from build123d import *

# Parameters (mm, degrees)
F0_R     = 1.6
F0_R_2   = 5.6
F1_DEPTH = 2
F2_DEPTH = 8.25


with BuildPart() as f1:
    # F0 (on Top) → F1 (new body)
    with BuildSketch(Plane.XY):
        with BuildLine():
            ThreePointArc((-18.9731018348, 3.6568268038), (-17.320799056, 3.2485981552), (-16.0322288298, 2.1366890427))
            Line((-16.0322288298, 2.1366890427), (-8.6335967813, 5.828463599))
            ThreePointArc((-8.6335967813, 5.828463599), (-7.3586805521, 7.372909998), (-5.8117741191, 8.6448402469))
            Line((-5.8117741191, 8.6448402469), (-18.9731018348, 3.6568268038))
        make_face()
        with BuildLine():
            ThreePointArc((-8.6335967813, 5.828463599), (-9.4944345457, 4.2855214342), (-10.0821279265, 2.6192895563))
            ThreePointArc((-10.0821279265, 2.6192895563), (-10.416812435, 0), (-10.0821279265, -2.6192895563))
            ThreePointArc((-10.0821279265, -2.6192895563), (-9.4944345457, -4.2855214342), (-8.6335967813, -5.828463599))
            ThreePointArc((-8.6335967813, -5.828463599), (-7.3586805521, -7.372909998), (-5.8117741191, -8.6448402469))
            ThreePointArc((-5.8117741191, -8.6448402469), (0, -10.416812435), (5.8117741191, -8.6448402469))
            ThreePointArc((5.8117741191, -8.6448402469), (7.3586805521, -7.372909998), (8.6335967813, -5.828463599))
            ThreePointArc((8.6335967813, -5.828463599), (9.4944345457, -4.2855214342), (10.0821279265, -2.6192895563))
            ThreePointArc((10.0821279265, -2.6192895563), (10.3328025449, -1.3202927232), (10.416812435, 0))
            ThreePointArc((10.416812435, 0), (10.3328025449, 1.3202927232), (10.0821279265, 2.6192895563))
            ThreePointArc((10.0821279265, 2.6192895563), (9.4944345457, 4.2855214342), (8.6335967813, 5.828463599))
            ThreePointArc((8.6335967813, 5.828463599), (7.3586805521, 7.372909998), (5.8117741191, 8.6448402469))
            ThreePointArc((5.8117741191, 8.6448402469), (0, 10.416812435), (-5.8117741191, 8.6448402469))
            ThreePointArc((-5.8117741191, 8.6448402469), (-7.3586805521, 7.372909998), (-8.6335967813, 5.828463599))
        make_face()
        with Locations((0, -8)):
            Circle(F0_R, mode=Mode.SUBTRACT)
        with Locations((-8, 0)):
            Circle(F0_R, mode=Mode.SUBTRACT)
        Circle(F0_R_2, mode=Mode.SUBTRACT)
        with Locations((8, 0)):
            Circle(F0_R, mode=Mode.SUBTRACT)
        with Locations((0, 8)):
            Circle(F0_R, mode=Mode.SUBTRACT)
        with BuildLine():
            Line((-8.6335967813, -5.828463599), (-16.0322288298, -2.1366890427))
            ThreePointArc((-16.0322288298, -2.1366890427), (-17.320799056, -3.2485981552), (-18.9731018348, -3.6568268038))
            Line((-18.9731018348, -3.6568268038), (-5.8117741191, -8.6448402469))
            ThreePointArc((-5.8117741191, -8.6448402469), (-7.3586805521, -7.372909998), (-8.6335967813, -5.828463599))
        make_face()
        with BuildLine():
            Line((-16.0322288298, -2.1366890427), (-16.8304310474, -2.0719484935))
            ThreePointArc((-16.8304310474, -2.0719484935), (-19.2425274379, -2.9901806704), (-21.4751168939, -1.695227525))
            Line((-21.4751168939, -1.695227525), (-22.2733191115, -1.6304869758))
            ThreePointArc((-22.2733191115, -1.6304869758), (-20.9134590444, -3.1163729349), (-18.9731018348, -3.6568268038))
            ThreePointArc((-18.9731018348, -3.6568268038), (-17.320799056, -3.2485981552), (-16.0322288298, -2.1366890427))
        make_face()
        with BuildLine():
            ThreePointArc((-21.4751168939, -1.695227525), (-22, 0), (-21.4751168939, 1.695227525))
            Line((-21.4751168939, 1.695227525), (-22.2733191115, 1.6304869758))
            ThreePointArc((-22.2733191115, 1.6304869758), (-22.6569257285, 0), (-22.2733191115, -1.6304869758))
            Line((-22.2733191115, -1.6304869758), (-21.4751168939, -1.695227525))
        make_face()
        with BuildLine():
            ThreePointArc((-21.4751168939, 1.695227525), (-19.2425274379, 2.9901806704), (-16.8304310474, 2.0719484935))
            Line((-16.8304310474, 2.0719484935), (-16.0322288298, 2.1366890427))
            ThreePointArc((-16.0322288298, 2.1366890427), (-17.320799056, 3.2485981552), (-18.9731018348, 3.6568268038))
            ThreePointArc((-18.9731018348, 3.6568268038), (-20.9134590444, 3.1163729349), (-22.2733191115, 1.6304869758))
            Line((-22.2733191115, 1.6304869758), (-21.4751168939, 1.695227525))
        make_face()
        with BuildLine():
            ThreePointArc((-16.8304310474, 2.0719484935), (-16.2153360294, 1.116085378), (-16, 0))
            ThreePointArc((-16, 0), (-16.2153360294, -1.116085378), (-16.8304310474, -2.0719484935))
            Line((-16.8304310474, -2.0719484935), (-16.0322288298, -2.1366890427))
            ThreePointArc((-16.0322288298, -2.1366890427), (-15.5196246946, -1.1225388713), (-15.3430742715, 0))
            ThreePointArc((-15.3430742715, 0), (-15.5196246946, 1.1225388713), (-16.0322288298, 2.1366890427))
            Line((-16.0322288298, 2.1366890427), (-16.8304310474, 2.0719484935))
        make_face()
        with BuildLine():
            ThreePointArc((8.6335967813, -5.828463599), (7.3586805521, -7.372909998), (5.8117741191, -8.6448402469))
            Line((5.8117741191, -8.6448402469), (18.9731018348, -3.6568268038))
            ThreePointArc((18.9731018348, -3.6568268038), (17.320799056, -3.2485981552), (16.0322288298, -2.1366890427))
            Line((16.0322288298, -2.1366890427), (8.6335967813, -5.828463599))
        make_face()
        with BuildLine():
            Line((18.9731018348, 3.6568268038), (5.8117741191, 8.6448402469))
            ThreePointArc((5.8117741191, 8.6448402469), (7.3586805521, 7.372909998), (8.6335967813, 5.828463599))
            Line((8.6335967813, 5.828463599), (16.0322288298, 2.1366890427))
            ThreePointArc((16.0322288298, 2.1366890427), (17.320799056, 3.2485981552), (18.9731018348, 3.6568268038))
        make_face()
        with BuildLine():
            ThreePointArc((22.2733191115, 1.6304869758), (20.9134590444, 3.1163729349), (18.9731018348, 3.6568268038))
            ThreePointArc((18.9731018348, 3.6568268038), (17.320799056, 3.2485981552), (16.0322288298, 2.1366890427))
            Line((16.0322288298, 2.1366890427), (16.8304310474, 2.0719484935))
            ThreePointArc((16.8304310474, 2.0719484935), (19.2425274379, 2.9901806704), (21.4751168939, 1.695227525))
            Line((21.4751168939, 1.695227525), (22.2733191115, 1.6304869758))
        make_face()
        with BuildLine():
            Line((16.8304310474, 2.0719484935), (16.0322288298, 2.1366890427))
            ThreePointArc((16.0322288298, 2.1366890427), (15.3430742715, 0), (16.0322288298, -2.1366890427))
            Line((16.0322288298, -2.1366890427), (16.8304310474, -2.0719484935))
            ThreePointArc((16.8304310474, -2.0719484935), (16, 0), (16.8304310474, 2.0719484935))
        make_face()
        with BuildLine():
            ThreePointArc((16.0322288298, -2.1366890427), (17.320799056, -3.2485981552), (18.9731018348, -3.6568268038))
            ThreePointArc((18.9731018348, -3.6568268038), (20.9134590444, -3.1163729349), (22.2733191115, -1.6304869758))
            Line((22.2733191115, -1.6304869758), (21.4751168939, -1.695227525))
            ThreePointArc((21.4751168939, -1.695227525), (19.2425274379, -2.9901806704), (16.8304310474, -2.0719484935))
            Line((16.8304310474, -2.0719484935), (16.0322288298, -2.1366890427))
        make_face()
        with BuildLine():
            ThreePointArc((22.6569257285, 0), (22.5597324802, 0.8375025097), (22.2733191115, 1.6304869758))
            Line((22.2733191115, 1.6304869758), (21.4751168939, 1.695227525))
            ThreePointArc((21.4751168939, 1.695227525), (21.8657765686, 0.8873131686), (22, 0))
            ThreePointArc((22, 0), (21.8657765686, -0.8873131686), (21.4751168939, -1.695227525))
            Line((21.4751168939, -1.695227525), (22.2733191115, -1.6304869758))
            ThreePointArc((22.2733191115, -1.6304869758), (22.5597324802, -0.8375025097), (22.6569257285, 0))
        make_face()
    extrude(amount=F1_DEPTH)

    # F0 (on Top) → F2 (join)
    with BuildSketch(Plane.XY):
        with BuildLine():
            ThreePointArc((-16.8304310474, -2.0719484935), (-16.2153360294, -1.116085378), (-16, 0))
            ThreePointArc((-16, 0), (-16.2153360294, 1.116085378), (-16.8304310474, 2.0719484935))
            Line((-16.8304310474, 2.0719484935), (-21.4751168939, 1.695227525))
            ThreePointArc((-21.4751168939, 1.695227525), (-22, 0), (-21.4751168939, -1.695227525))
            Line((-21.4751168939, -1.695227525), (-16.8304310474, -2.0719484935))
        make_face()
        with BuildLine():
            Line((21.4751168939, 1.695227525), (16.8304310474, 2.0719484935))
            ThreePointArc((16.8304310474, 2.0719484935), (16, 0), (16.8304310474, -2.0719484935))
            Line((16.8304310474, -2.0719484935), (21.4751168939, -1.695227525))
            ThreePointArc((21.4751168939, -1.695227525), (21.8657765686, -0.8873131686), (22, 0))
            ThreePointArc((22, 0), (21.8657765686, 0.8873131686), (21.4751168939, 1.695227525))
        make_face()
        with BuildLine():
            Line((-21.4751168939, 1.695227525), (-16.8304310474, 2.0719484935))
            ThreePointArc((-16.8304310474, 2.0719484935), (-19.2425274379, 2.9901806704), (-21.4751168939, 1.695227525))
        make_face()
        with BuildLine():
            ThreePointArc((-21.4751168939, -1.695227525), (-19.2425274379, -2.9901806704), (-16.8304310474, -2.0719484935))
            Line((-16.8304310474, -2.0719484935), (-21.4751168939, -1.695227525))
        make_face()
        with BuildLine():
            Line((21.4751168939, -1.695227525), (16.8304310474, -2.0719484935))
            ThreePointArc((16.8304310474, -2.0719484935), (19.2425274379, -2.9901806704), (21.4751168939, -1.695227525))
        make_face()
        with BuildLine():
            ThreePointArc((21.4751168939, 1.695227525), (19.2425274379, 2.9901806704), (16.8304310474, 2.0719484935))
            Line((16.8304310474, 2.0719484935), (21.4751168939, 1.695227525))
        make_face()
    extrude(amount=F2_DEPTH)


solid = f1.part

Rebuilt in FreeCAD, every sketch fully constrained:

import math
import FreeCAD as App
import Part
import Sketcher

V = App.Vector

doc = App.newDocument("Part")
body = doc.addObject("PartDesign::Body", "Body")

# Sketch on XY plane
sketch1 = doc.addObject("Sketcher::SketchObject", "Sketch")
body.addObject(sketch1)
sketch1.AttachmentSupport = (doc.XY_Plane, [""])
sketch1.MapMode = "FlatFace"
sketch1.addGeometry(Part.LineSegment(V(5.811774, -8.64484, 0), V(18.973102, -3.656827, 0)), False)
sketch1.addGeometry(Part.ArcOfCircle(Part.Circle(V(19, 0, 0), V(0, 0, 1), 3.656926), math.radians(-90.421437), math.radians(-26.478551)), False)
sketch1.addGeometry(Part.ArcOfCircle(Part.Circle(V(19, 0, 0), V(0, 0, 1), 3.656926), math.radians(-26.478551), math.radians(0)), False)
sketch1.addGeometry(Part.ArcOfCircle(Part.Circle(V(19, 0, 0), V(0, 0, 1), 3.656926), math.radians(0), math.radians(26.478551)), False)
sketch1.addGeometry(Part.ArcOfCircle(Part.Circle(V(19, 0, 0), V(0, 0, 1), 3.656926), math.radians(26.478551), math.radians(90.421437)), False)
sketch1.addGeometry(Part.LineSegment(V(18.973102, 3.656827, 0), V(5.811774, 8.64484, 0)), False)
sketch1.addGeometry(Part.ArcOfCircle(Part.Circle(V(0, 0, 0), V(0, 0, 1), 10.416812), math.radians(56.087753), math.radians(123.912247)), False)
sketch1.addGeometry(Part.LineSegment(V(-5.811774, 8.64484, 0), V(-18.973102, 3.656827, 0)), False)
sketch1.addGeometry(Part.ArcOfCircle(Part.Circle(V(-19, 0, 0), V(0, 0, 1), 3.656926), math.radians(89.578563), math.radians(153.521449)), False)
sketch1.addGeometry(Part.ArcOfCircle(Part.Circle(V(-19, 0, 0), V(0, 0, 1), 3.656926), math.radians(153.521449), math.radians(206.478551)), False)
sketch1.addGeometry(Part.ArcOfCircle(Part.Circle(V(-19, 0, 0), V(0, 0, 1), 3.656926), math.radians(-153.521449), math.radians(-89.578563)), False)
sketch1.addGeometry(Part.LineSegment(V(-18.973102, -3.656827, 0), V(-5.811774, -8.64484, 0)), False)
sketch1.addGeometry(Part.ArcOfCircle(Part.Circle(V(0, 0, 0), V(0, 0, 1), 10.416812), math.radians(-123.912247), math.radians(-56.087753)), False)
sketch1.addGeometry(Part.ArcOfCircle(Part.Circle(V(19, 0, 0), V(0, 0, 1), 3), math.radians(-136.318456), math.radians(-34.407558)), False)
sketch1.addGeometry(Part.ArcOfCircle(Part.Circle(V(19, 0, 0), V(0, 0, 1), 3), math.radians(136.318456), math.radians(223.681544)), False)
sketch1.addGeometry(Part.ArcOfCircle(Part.Circle(V(19, 0, 0), V(0, 0, 1), 3), math.radians(34.407558), math.radians(136.318456)), False)
sketch1.addGeometry(Part.ArcOfCircle(Part.Circle(V(19, 0, 0), V(0, 0, 1), 3), math.radians(0), math.radians(34.407558)), False)
sketch1.addGeometry(Part.ArcOfCircle(Part.Circle(V(19, 0, 0), V(0, 0, 1), 3), math.radians(-34.407558), math.radians(0)), False)
sketch1.addGeometry(Part.Circle(V(0, -8, 0), V(0, 0, 1), 1.6), False)
sketch1.addGeometry(Part.ArcOfCircle(Part.Circle(V(19, 0, 0), V(0, 0, 1), 3.656926), math.radians(144.247463), math.radians(215.752537)), False)
sketch1.addGeometry(Part.LineSegment(V(16.032229, -2.136689, 0), V(8.633597, -5.828464, 0)), False)
sketch1.addGeometry(Part.ArcOfCircle(Part.Circle(V(0, 0, 0), V(0, 0, 1), 10.416812), math.radians(-34.022932), math.radians(-14.56323)), False)
sketch1.addGeometry(Part.ArcOfCircle(Part.Circle(V(0, 0, 0), V(0, 0, 1), 10.416812), math.radians(-14.56323), math.radians(0)), False)
sketch1.addGeometry(Part.ArcOfCircle(Part.Circle(V(0, 0, 0), V(0, 0, 1), 10.416812), math.radians(0), math.radians(14.56323)), False)
sketch1.addGeometry(Part.ArcOfCircle(Part.Circle(V(0, 0, 0), V(0, 0, 1), 10.416812), math.radians(14.56323), math.radians(34.022932)), False)
sketch1.addGeometry(Part.LineSegment(V(8.633597, 5.828464, 0), V(16.032229, 2.136689, 0)), False)
sketch1.addGeometry(Part.ArcOfCircle(Part.Circle(V(-19, 0, 0), V(0, 0, 1), 3), math.radians(-145.592442), math.radians(-43.681544)), False)
sketch1.addGeometry(Part.ArcOfCircle(Part.Circle(V(-19, 0, 0), V(0, 0, 1), 3), math.radians(145.592442), math.radians(214.407558)), False)
sketch1.addGeometry(Part.ArcOfCircle(Part.Circle(V(-19, 0, 0), V(0, 0, 1), 3), math.radians(43.681544), math.radians(145.592442)), False)
sketch1.addGeometry(Part.ArcOfCircle(Part.Circle(V(-19, 0, 0), V(0, 0, 1), 3), math.radians(0), math.radians(43.681544)), False)
sketch1.addGeometry(Part.ArcOfCircle(Part.Circle(V(-19, 0, 0), V(0, 0, 1), 3), math.radians(-43.681544), math.radians(0)), False)
sketch1.addGeometry(Part.LineSegment(V(-16.032229, 2.136689, 0), V(-8.633597, 5.828464, 0)), False)
sketch1.addGeometry(Part.ArcOfCircle(Part.Circle(V(0, 0, 0), V(0, 0, 1), 10.416812), math.radians(145.977068), math.radians(165.43677)), False)
sketch1.addGeometry(Part.ArcOfCircle(Part.Circle(V(0, 0, 0), V(0, 0, 1), 10.416812), math.radians(165.43677), math.radians(194.56323)), False)
sketch1.addGeometry(Part.ArcOfCircle(Part.Circle(V(0, 0, 0), V(0, 0, 1), 10.416812), math.radians(-165.43677), math.radians(-145.977068)), False)
sketch1.addGeometry(Part.LineSegment(V(-8.633597, -5.828464, 0), V(-16.032229, -2.136689, 0)), False)
sketch1.addGeometry(Part.ArcOfCircle(Part.Circle(V(-19, 0, 0), V(0, 0, 1), 3.656926), math.radians(-35.752537), math.radians(0)), False)
sketch1.addGeometry(Part.ArcOfCircle(Part.Circle(V(-19, 0, 0), V(0, 0, 1), 3.656926), math.radians(0), math.radians(35.752537)), False)
sketch1.addGeometry(Part.Circle(V(-8, 0, 0), V(0, 0, 1), 1.6), False)
sketch1.addGeometry(Part.Circle(V(0, 0, 0), V(0, 0, 1), 5.6), False)
sketch1.addGeometry(Part.Circle(V(8, 0, 0), V(0, 0, 1), 1.6), False)
sketch1.addGeometry(Part.Circle(V(0, 8, 0), V(0, 0, 1), 1.6), False)
sketch1.addConstraint(Sketcher.Constraint("Coincident", 0, 2, 1, 1))
sketch1.addConstraint(Sketcher.Constraint("Tangent", 1, 2, 2, 1))
sketch1.addConstraint(Sketcher.Constraint("Tangent", 2, 2, 3, 1))
sketch1.addConstraint(Sketcher.Constraint("Tangent", 3, 2, 4, 1))
sketch1.addConstraint(Sketcher.Constraint("Coincident", 4, 2, 5, 1))
sketch1.addConstraint(Sketcher.Constraint("Coincident", 5, 2, 6, 1))
sketch1.addConstraint(Sketcher.Constraint("Coincident", 6, 2, 7, 1))
sketch1.addConstraint(Sketcher.Constraint("Coincident", 7, 2, 8, 1))
sketch1.addConstraint(Sketcher.Constraint("Tangent", 8, 2, 9, 1))
sketch1.addConstraint(Sketcher.Constraint("Tangent", 9, 2, 10, 1))
sketch1.addConstraint(Sketcher.Constraint("Coincident", 10, 2, 11, 1))
sketch1.addConstraint(Sketcher.Constraint("Coincident", 11, 2, 12, 1))
sketch1.addConstraint(Sketcher.Constraint("Coincident", 12, 2, 0, 1))
sketch1.addConstraint(Sketcher.Constraint("Tangent", 13, 1, 14, 2))
sketch1.addConstraint(Sketcher.Constraint("Tangent", 14, 1, 15, 2))
sketch1.addConstraint(Sketcher.Constraint("Tangent", 15, 1, 16, 2))
sketch1.addConstraint(Sketcher.Constraint("Tangent", 16, 1, 17, 2))
sketch1.addConstraint(Sketcher.Constraint("Tangent", 17, 1, 13, 2))
sketch1.addConstraint(Sketcher.Constraint("Coincident", 19, 2, 20, 1))
sketch1.addConstraint(Sketcher.Constraint("Coincident", 20, 2, 21, 1))
sketch1.addConstraint(Sketcher.Constraint("Tangent", 21, 2, 22, 1))
sketch1.addConstraint(Sketcher.Constraint("Tangent", 22, 2, 23, 1))
sketch1.addConstraint(Sketcher.Constraint("Tangent", 23, 2, 24, 1))
sketch1.addConstraint(Sketcher.Constraint("Coincident", 24, 2, 25, 1))
sketch1.addConstraint(Sketcher.Constraint("Coincident", 25, 2, 19, 1))
sketch1.addConstraint(Sketcher.Constraint("Tangent", 26, 1, 27, 2))
sketch1.addConstraint(Sketcher.Constraint("Tangent", 27, 1, 28, 2))
sketch1.addConstraint(Sketcher.Constraint("Tangent", 28, 1, 29, 2))
sketch1.addConstraint(Sketcher.Constraint("Tangent", 29, 1, 30, 2))
sketch1.addConstraint(Sketcher.Constraint("Tangent", 30, 1, 26, 2))
sketch1.addConstraint(Sketcher.Constraint("Coincident", 31, 2, 32, 1))
sketch1.addConstraint(Sketcher.Constraint("Tangent", 32, 2, 33, 1))
sketch1.addConstraint(Sketcher.Constraint("Tangent", 33, 2, 34, 1))
sketch1.addConstraint(Sketcher.Constraint("Coincident", 34, 2, 35, 1))
sketch1.addConstraint(Sketcher.Constraint("Coincident", 35, 2, 36, 1))
sketch1.addConstraint(Sketcher.Constraint("Tangent", 36, 2, 37, 1))
sketch1.addConstraint(Sketcher.Constraint("Coincident", 37, 2, 31, 1))
sketch1.addConstraint(Sketcher.Constraint("Coincident", 6, 3, -1, 1))
sketch1.addConstraint(Sketcher.Constraint("Coincident", 12, 3, -1, 1))
sketch1.addConstraint(Sketcher.Constraint("Coincident", 21, 3, -1, 1))
sketch1.addConstraint(Sketcher.Constraint("Coincident", 23, 3, -1, 1))
sketch1.addConstraint(Sketcher.Constraint("Coincident", 32, 3, -1, 1))
sketch1.addConstraint(Sketcher.Constraint("Coincident", 34, 3, -1, 1))
sketch1.addConstraint(Sketcher.Constraint("Coincident", 39, 3, -1, 1))
sketch1.addConstraint(Sketcher.Constraint("Coincident", 3, 3, 1, 3))
sketch1.addConstraint(Sketcher.Constraint("Coincident", 10, 3, 8, 3))
sketch1.addConstraint(Sketcher.Constraint("Coincident", 13, 3, 1, 3))
sketch1.addConstraint(Sketcher.Constraint("Coincident", 15, 3, 1, 3))
sketch1.addConstraint(Sketcher.Constraint("Coincident", 19, 3, 1, 3))
sketch1.addConstraint(Sketcher.Constraint("Coincident", 26, 3, 8, 3))
sketch1.addConstraint(Sketcher.Constraint("Coincident", 28, 3, 8, 3))
sketch1.addConstraint(Sketcher.Constraint("Coincident", 36, 3, 8, 3))
sketch1.addConstraint(Sketcher.Constraint("Equal", 3, 4))
sketch1.addConstraint(Sketcher.Constraint("Equal", 4, 8))
sketch1.addConstraint(Sketcher.Constraint("Equal", 6, 12))
sketch1.addConstraint(Sketcher.Constraint("Equal", 10, 19))
sketch1.addConstraint(Sketcher.Constraint("Equal", 12, 21))
sketch1.addConstraint(Sketcher.Constraint("Equal", 23, 24))
sketch1.addConstraint(Sketcher.Constraint("Equal", 17, 26))
sketch1.addConstraint(Sketcher.Constraint("Equal", 24, 32))
sketch1.addConstraint(Sketcher.Constraint("Equal", 19, 36))
sketch1.addConstraint(Sketcher.Constraint("Equal", 36, 37))
sketch1.addConstraint(Sketcher.Constraint("Equal", 18, 38))
sketch1.addConstraint(Sketcher.Constraint("Equal", 38, 40))
sketch1.addConstraint(Sketcher.Constraint("Equal", 40, 41))
sketch1.addConstraint(Sketcher.Constraint("Symmetric", 1, 3, 8, 3, -1, 1))
sketch1.addConstraint(Sketcher.Constraint("Symmetric", 38, 3, 40, 3, -1, 1))
sketch1.addConstraint(Sketcher.Constraint("Symmetric", 18, 3, 41, 3, -1, 1))
sketch1.addConstraint(Sketcher.Constraint("Symmetric", 4, 2, 7, 2, -2))
sketch1.addConstraint(Sketcher.Constraint("PointOnObject", 18, 3, -2))
sketch1.addConstraint(Sketcher.Constraint("PointOnObject", 38, 3, -1))
sketch1.addConstraint(Sketcher.Constraint("PointOnObject", 2, 2, -1))
sketch1.addConstraint(Sketcher.Constraint("PointOnObject", 16, 1, -1))
sketch1.addConstraint(Sketcher.Constraint("PointOnObject", 22, 2, -1))
sketch1.addConstraint(Sketcher.Constraint("PointOnObject", 29, 1, -1))
sketch1.addConstraint(Sketcher.Constraint("PointOnObject", 36, 2, -1))
sketch1.addConstraint(Sketcher.Constraint("Parallel", 0, 7))
sketch1.addConstraint(Sketcher.Constraint("Parallel", 5, 11))
sketch1.addConstraint(Sketcher.Constraint("Parallel", 20, 31))
sketch1.addConstraint(Sketcher.Constraint("Parallel", 25, 35))
sketch1.addConstraint(Sketcher.Constraint("Horizontal", 5, 2, 6, 2))
sketch1.addConstraint(Sketcher.Constraint("Horizontal", 3, 2, 8, 2))
sketch1.addConstraint(Sketcher.Constraint("Horizontal", 1, 2, 9, 2))
sketch1.addConstraint(Sketcher.Constraint("Horizontal", 0, 2, 10, 2))
sketch1.addConstraint(Sketcher.Constraint("Horizontal", 17, 1, 26, 1))
sketch1.addConstraint(Sketcher.Constraint("Horizontal", 15, 1, 27, 1))
sketch1.addConstraint(Sketcher.Constraint("Horizontal", 14, 1, 28, 1))
sketch1.addConstraint(Sketcher.Constraint("Horizontal", 13, 1, 30, 1))
sketch1.addConstraint(Sketcher.Constraint("Horizontal", 24, 2, 31, 2))
sketch1.addConstraint(Sketcher.Constraint("Horizontal", 23, 2, 32, 2))
sketch1.addConstraint(Sketcher.Constraint("Horizontal", 21, 2, 33, 2))
sketch1.addConstraint(Sketcher.Constraint("Horizontal", 20, 2, 34, 2))
sketch1.addConstraint(Sketcher.Constraint("Horizontal", 19, 2, 35, 2))
sketch1.addConstraint(Sketcher.Constraint("Vertical", 1, 2, 3, 2))
sketch1.addConstraint(Sketcher.Constraint("Vertical", 0, 2, 4, 2))
sketch1.addConstraint(Sketcher.Constraint("Vertical", 13, 1, 14, 1))
sketch1.addConstraint(Sketcher.Constraint("Vertical", 15, 1, 17, 1))
sketch1.addConstraint(Sketcher.Constraint("Vertical", 21, 2, 23, 2))
sketch1.addConstraint(Sketcher.Constraint("Vertical", 20, 2, 24, 2))
sketch1.addConstraint(Sketcher.Constraint("Radius", 13, 3.0))
sketch1.addConstraint(Sketcher.Constraint("Diameter", 18, 3.2))
sketch1.addConstraint(Sketcher.Constraint("Diameter", 39, 11.2))
sketch1.addConstraint(Sketcher.Constraint("DistanceX", -1, 1, 1, 3, 19.0))
sketch1.addConstraint(Sketcher.Constraint("DistanceY", 18, 3, -1, 1, 8.0))
sketch1.addConstraint(Sketcher.Constraint("DistanceX", 38, 3, -1, 1, 8.0))
sketch1.addConstraint(Sketcher.Constraint("Radius", 1, 3.656926))
sketch1.addConstraint(Sketcher.Constraint("Radius", 6, 10.416812))
sketch1.addConstraint(Sketcher.Constraint("DistanceX", -1, 1, 0, 2, 18.973102))
sketch1.addConstraint(Sketcher.Constraint("Distance", 0, 14.074829))
sketch1.addConstraint(Sketcher.Constraint("DistanceX", -1, 1, 1, 2, 22.273319))
sketch1.addConstraint(Sketcher.Constraint("DistanceX", -1, 1, 13, 1, 16.830431))
sketch1.addConstraint(Sketcher.Constraint("DistanceX", -1, 1, 19, 2, 16.032229))
sketch1.addConstraint(Sketcher.Constraint("DistanceY", 21, 2, -1, 1, 2.61929))
sketch1.addConstraint(Sketcher.Constraint("Distance", 20, 8.268552))
sketch1.addConstraint(Sketcher.Constraint("DistanceX", -1, 1, 15, 1, 21.475117))
pad1 = doc.addObject("PartDesign::Pad", "Pad")
body.addObject(pad1)
pad1.Profile = sketch1
pad1.Length = 2

# Sketch on XY plane
sketch2 = doc.addObject("Sketcher::SketchObject", "Sketch001")
body.addObject(sketch2)
sketch2.AttachmentSupport = (doc.XY_Plane, [""])
sketch2.MapMode = "FlatFace"
sketch2.addGeometry(Part.ArcOfCircle(Part.Circle(V(-19, 0, 0), V(0, 0, 1), 3), math.radians(-43.681544), math.radians(0)), False)
sketch2.addGeometry(Part.ArcOfCircle(Part.Circle(V(-19, 0, 0), V(0, 0, 1), 3), math.radians(0), math.radians(43.681544)), False)
sketch2.addGeometry(Part.ArcOfCircle(Part.Circle(V(-19, 0, 0), V(0, 0, 1), 3), math.radians(43.681544), math.radians(145.592442)), False)
sketch2.addGeometry(Part.ArcOfCircle(Part.Circle(V(-19, 0, 0), V(0, 0, 1), 3), math.radians(145.592442), math.radians(214.407558)), False)
sketch2.addGeometry(Part.ArcOfCircle(Part.Circle(V(-19, 0, 0), V(0, 0, 1), 3), math.radians(-145.592442), math.radians(-43.681544)), False)
sketch2.addGeometry(Part.ArcOfCircle(Part.Circle(V(19, 0, 0), V(0, 0, 1), 3), math.radians(136.318456), math.radians(223.681544)), False)
sketch2.addGeometry(Part.ArcOfCircle(Part.Circle(V(19, 0, 0), V(0, 0, 1), 3), math.radians(-136.318456), math.radians(-34.407558)), False)
sketch2.addGeometry(Part.ArcOfCircle(Part.Circle(V(19, 0, 0), V(0, 0, 1), 3), math.radians(-34.407558), math.radians(0)), False)
sketch2.addGeometry(Part.ArcOfCircle(Part.Circle(V(19, 0, 0), V(0, 0, 1), 3), math.radians(0), math.radians(34.407558)), False)
sketch2.addGeometry(Part.ArcOfCircle(Part.Circle(V(19, 0, 0), V(0, 0, 1), 3), math.radians(34.407558), math.radians(136.318456)), False)
sketch2.addConstraint(Sketcher.Constraint("Tangent", 0, 2, 1, 1))
sketch2.addConstraint(Sketcher.Constraint("Tangent", 1, 2, 2, 1))
sketch2.addConstraint(Sketcher.Constraint("Tangent", 2, 2, 3, 1))
sketch2.addConstraint(Sketcher.Constraint("Tangent", 3, 2, 4, 1))
sketch2.addConstraint(Sketcher.Constraint("Tangent", 4, 2, 0, 1))
sketch2.addConstraint(Sketcher.Constraint("Tangent", 5, 2, 6, 1))
sketch2.addConstraint(Sketcher.Constraint("Tangent", 6, 2, 7, 1))
sketch2.addConstraint(Sketcher.Constraint("Tangent", 7, 2, 8, 1))
sketch2.addConstraint(Sketcher.Constraint("Tangent", 8, 2, 9, 1))
sketch2.addConstraint(Sketcher.Constraint("Tangent", 9, 2, 5, 1))
sketch2.addConstraint(Sketcher.Constraint("Coincident", 2, 3, 0, 3))
sketch2.addConstraint(Sketcher.Constraint("Coincident", 7, 3, 5, 3))
sketch2.addConstraint(Sketcher.Constraint("Equal", 4, 5))
sketch2.addConstraint(Sketcher.Constraint("Symmetric", 0, 3, 5, 3, -1, 1))
sketch2.addConstraint(Sketcher.Constraint("Symmetric", 4, 2, 5, 2, -2))
sketch2.addConstraint(Sketcher.Constraint("PointOnObject", 0, 2, -1))
sketch2.addConstraint(Sketcher.Constraint("PointOnObject", 7, 2, -1))
sketch2.addConstraint(Sketcher.Constraint("Horizontal", 3, 2, 6, 2))
sketch2.addConstraint(Sketcher.Constraint("Horizontal", 2, 2, 8, 2))
sketch2.addConstraint(Sketcher.Constraint("Horizontal", 1, 2, 9, 2))
sketch2.addConstraint(Sketcher.Constraint("Vertical", 2, 2, 3, 2))
sketch2.addConstraint(Sketcher.Constraint("Vertical", 1, 2, 4, 2))
sketch2.addConstraint(Sketcher.Constraint("Radius", 0, 3.0))
sketch2.addConstraint(Sketcher.Constraint("DistanceX", 0, 3, -1, 1, 19.0))
sketch2.addConstraint(Sketcher.Constraint("DistanceX", 1, 2, -1, 1, 16.830431))
sketch2.addConstraint(Sketcher.Constraint("DistanceX", 2, 2, -1, 1, 21.475117))
pad2 = doc.addObject("PartDesign::Pad", "Pad001")
body.addObject(pad2)
pad2.Profile = sketch2
pad2.Length = 8.25

doc.recompute()
